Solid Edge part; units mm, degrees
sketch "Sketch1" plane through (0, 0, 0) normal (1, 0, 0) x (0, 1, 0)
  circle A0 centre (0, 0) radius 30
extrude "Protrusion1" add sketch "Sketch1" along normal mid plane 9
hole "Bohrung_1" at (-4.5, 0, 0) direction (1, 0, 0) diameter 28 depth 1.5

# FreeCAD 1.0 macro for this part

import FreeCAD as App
import Part
import Sketcher

V = App.Vector

doc = App.newDocument("Part")
body = doc.addObject("PartDesign::Body", "Body")

sketch1 = doc.addObject("Sketcher::SketchObject", "Sketch")
body.addObject(sketch1)
sketch1.AttachmentSupport = (doc.YZ_Plane, [""])
sketch1.MapMode = "FlatFace"
sketch1.addGeometry(Part.Circle(V(0, 0, 0), V(0, 0, 1), 30), False)
sketch1.addConstraint([
    Sketcher.Constraint("Coincident", 0, 3, -1, 1),
    Sketcher.Constraint("Diameter", 0, 60.0),
])
pad1 = doc.addObject("PartDesign::Pad", "Pad")
body.addObject(pad1)
pad1.Profile = sketch1
pad1.Length = 9
pad1.Midplane = True

sketch2 = doc.addObject("Sketcher::SketchObject", "Sketch001")
body.addObject(sketch2)
sketch2.AttachmentSupport = (doc.YZ_Plane, [""])
sketch2.MapMode = "FlatFace"
sketch2.AttachmentOffset = App.Placement(V(0, 0, -4.5), App.Rotation())
sketch2.addGeometry(Part.Circle(V(0, 0, 0), V(0, 0, 1), 14), False)
sketch2.addConstraint([
    Sketcher.Constraint("Coincident", 0, 3, -1, 1),
    Sketcher.Constraint("Diameter", 0, 28.0),
])
doc.recompute()
hole = doc.addObject("PartDesign::Hole", "Hole")
body.addObject(hole)
hole.Profile = sketch2
hole.ThreadType = "None"
hole.Diameter = 28
hole.DepthType = "Dimension"
hole.Depth = 1.5
hole.DrillPoint = "Flat"
hole.Reversed = True

doc.recompute()
